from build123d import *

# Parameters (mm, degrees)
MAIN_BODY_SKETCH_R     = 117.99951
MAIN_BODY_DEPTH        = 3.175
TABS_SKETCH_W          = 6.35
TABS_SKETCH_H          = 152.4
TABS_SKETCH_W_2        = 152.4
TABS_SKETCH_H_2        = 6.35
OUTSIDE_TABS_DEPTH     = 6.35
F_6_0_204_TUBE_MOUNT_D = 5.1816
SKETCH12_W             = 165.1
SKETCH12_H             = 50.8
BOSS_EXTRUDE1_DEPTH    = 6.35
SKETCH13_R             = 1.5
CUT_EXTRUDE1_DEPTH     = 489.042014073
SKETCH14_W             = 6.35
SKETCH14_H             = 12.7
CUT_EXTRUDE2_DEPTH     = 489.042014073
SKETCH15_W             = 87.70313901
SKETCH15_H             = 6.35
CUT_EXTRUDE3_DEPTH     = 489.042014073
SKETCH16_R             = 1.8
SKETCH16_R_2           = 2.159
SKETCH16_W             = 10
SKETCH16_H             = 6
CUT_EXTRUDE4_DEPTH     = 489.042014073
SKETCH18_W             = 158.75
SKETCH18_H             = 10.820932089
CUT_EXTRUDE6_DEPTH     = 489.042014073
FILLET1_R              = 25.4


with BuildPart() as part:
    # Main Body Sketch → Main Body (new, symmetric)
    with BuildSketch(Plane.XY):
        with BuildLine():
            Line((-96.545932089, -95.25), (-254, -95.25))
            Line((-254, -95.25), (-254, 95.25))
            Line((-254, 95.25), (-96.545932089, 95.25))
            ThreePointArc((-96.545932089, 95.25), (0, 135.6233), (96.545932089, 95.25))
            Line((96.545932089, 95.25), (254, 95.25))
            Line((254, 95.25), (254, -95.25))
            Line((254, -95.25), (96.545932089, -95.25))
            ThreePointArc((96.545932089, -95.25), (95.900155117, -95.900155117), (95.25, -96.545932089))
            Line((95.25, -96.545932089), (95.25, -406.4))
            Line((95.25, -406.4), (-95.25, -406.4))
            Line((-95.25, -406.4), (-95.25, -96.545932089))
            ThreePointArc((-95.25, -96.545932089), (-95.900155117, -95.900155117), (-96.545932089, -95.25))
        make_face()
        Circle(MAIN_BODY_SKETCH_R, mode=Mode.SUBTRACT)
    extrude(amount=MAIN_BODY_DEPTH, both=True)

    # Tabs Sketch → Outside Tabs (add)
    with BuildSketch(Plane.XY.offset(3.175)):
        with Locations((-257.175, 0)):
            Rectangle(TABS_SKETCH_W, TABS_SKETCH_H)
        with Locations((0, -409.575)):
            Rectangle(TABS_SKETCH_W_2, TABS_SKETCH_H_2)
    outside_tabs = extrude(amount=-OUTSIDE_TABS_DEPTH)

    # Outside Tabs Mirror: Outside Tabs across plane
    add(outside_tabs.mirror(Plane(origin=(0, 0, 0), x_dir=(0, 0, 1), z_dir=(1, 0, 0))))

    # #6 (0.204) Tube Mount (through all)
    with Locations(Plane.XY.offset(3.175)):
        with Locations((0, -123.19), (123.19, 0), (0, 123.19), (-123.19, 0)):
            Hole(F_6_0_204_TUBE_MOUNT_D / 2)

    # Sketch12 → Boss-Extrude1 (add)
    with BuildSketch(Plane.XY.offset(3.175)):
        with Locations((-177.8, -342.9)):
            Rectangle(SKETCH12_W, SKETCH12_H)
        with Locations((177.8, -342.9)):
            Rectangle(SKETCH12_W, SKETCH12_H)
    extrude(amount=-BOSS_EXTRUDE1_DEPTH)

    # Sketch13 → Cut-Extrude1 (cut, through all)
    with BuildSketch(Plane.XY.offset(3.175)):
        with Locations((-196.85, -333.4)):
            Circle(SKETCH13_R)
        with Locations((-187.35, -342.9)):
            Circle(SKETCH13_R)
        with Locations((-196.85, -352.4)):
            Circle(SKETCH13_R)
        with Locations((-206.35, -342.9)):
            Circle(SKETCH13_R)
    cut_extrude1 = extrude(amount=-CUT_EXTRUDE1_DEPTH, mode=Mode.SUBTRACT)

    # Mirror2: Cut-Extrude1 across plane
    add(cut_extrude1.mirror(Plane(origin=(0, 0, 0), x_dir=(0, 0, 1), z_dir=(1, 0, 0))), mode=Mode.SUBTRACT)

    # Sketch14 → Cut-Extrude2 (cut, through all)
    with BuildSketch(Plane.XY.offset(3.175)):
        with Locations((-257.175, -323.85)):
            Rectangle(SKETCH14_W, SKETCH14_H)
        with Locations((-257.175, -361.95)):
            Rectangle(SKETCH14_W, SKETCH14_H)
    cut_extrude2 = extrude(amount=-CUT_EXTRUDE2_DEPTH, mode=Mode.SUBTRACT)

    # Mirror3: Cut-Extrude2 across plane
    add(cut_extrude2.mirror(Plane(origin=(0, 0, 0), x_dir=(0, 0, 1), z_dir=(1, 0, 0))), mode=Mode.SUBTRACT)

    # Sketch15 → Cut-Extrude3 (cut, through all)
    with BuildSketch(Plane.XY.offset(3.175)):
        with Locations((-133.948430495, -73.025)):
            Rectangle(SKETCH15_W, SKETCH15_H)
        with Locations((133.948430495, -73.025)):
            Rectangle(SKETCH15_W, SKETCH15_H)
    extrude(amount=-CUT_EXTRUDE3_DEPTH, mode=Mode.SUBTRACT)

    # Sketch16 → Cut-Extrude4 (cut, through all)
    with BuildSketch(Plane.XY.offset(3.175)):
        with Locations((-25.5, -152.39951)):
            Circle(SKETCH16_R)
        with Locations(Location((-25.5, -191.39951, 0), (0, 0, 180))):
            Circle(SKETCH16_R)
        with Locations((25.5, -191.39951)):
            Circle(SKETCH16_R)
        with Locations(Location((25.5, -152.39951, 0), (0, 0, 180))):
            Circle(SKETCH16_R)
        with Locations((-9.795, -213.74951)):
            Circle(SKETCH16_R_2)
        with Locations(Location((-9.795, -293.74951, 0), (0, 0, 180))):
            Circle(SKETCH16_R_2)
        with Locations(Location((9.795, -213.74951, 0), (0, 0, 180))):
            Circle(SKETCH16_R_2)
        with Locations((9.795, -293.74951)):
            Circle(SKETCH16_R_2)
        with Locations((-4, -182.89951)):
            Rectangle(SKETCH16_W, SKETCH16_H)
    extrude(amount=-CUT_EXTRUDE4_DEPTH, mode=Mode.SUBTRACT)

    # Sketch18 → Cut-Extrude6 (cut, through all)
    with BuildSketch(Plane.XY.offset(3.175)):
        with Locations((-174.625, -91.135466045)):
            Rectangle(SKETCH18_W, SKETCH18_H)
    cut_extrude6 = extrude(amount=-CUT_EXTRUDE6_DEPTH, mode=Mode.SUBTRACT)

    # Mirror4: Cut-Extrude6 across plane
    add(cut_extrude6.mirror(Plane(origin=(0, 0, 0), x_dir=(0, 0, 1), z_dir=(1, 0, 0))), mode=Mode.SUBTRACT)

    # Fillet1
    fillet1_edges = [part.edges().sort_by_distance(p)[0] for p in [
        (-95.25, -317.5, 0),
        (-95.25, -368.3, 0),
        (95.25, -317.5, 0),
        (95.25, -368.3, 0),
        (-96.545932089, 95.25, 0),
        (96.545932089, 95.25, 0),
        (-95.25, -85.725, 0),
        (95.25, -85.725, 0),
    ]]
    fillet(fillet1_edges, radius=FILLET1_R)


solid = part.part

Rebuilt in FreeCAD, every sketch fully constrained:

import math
import FreeCAD as App
import Part
import Sketcher
from FreeCAD import Vector
Q = App.Units.Quantity


def edges_at(feature, points):
    """Names of the edges that pass closest to the given points."""
    edges = feature.Shape.Edges
    near = lambda p: min(range(len(edges)), key=lambda i: edges[i].distToShape(Part.Vertex(*p))[0])
    return sorted({f"Edge{near(p) + 1}" for p in points})


def add_polygon(sketch, points):
    """Adds a closed chain of lines whose ends are joined by coincident constraints."""
    first, n = sketch.GeometryCount, len(points)
    for a, b in zip(points, points[1:] + points[:1]):
        sketch.addGeometry(Part.LineSegment(App.Vector(*a, 0), App.Vector(*b, 0)), False)
    for i in range(n):
        sketch.addConstraint(Sketcher.Constraint("Coincident", first + i, 2, first + (i + 1) % n, 1))

doc = App.newDocument("Part")
body = doc.addObject("PartDesign::Body", "Body")

sketch1 = doc.addObject("Sketcher::SketchObject", "Sketch")
body.addObject(sketch1)
sketch1.AttachmentSupport = (doc.XY_Plane, [""])
sketch1.MapMode = "FlatFace"
sketch1.addGeometry([
    Part.LineSegment(Vector(-254, -95.2, 0), Vector(-96.5, -95.2, 0)),
    Part.ArcOfCircle(Part.Circle(Vector(0, 0, 0), Vector(0, 0, 1), 135.6), math.radians(-135.39), math.radians(-134.61)),
    Part.LineSegment(Vector(-95.2, -96.5, 0), Vector(-95.2, -406.4, 0)),
    Part.LineSegment(Vector(-95.2, -406.4, 0), Vector(95.2, -406.4, 0)),
    Part.LineSegment(Vector(95.2, -406.4, 0), Vector(95.2, -96.5, 0)),
    Part.ArcOfCircle(Part.Circle(Vector(0, 0, 0), Vector(0, 0, 1), 135.6), math.radians(-45.39), math.radians(-44.61)),
    Part.LineSegment(Vector(96.5, -95.2, 0), Vector(254, -95.2, 0)),
    Part.LineSegment(Vector(254, -95.2, 0), Vector(254, 95.2, 0)),
    Part.LineSegment(Vector(254, 95.2, 0), Vector(96.5, 95.2, 0)),
    Part.ArcOfCircle(Part.Circle(Vector(0, 0, 0), Vector(0, 0, 1), 135.6), math.radians(45), math.radians(135)),
    Part.LineSegment(Vector(-96.5, 95.2, 0), Vector(-254, 95.2, 0)),
    Part.LineSegment(Vector(-254, 95.2, 0), Vector(-254, -95.2, 0)),
    Part.Circle(Vector(0, 0, 0), Vector(0, 0, 1), 118),
], False)
sketch1.addConstraint([
    Sketcher.Constraint("Coincident", 0, 2, 1, 1),
    Sketcher.Constraint("Coincident", 1, 2, 2, 1),
    Sketcher.Constraint("Coincident", 2, 2, 3, 1),
    Sketcher.Constraint("Coincident", 3, 2, 4, 1),
    Sketcher.Constraint("Coincident", 4, 2, 5, 1),
    Sketcher.Constraint("Coincident", 5, 2, 6, 1),
    Sketcher.Constraint("Coincident", 6, 2, 7, 1),
    Sketcher.Constraint("Coincident", 7, 2, 8, 1),
    Sketcher.Constraint("Coincident", 8, 2, 9, 1),
    Sketcher.Constraint("Coincident", 9, 2, 10, 1),
    Sketcher.Constraint("Coincident", 10, 2, 11, 1),
    Sketcher.Constraint("Coincident", 11, 2, 0, 1),
    Sketcher.Constraint("Horizontal", 0),
    Sketcher.Constraint("Vertical", 2),
    Sketcher.Constraint("Horizontal", 3),
    Sketcher.Constraint("Vertical", 4),
    Sketcher.Constraint("Horizontal", 6),
    Sketcher.Constraint("Vertical", 7),
    Sketcher.Constraint("Horizontal", 8),
    Sketcher.Constraint("Horizontal", 10),
    Sketcher.Constraint("Vertical", 11),
    Sketcher.Constraint("Coincident", 1, 3, -1, 1),
    Sketcher.Constraint("Coincident", 5, 3, -1, 1),
    Sketcher.Constraint("Coincident", 9, 3, -1, 1),
    Sketcher.Constraint("Coincident", 12, 3, -1, 1),
    Sketcher.Constraint("Equal", 1, 5),
    Sketcher.Constraint("Equal", 5, 9),
    Sketcher.Constraint("Symmetric", 6, 2, 10, 2, -1, 1),
    Sketcher.Constraint("Horizontal", 1, 2, 4, 2),
    Sketcher.Constraint("Horizontal", 0, 2, 5, 2),
    Sketcher.Constraint("Horizontal", 8, 2, 9, 2),
    Sketcher.Constraint("Equal", 3, 7),
    Sketcher.Constraint("DistanceX", 3, 1, 3, 2, Q("7.5 in")),
    Sketcher.Constraint("DistanceY", 2, 2, -1, 1, Q("16 in")),
    Sketcher.Constraint("DistanceX", -1, 1, 6, 2, Q("10 in")),
    Sketcher.Constraint("Diameter", 12, Q("9.2913 in")),
    Sketcher.Constraint("Radius", 1, Q("5.3395 in")),
])
pad1 = doc.addObject("PartDesign::Pad", "Pad")
body.addObject(pad1)
pad1.Profile = sketch1
pad1.Length = Q("0.25 in")
pad1.Midplane = True

sketch2 = doc.addObject("Sketcher::SketchObject", "Sketch001")
body.addObject(sketch2)
sketch2.AttachmentSupport = (doc.XY_Plane, [""])
sketch2.MapMode = "FlatFace"
sketch2.AttachmentOffset = App.Placement(Vector(0, 0, 0.125 * 25.4), App.Rotation())
add_polygon(sketch2, [(-260, 76), (-260, -76), (-254, -76), (-254, 76)])
add_polygon(sketch2, [(-76, -406), (-76, -413), (76, -413), (76, -406)])
sketch2.addConstraint([
    Sketcher.Constraint("Vertical", 0),
    Sketcher.Constraint("Horizontal", 1),
    Sketcher.Constraint("Vertical", 2),
    Sketcher.Constraint("Horizontal", 3),
    Sketcher.Constraint("Vertical", 4),
    Sketcher.Constraint("Horizontal", 5),
    Sketcher.Constraint("Vertical", 6),
    Sketcher.Constraint("Horizontal", 7),
    Sketcher.Constraint("Equal", 7, 0),
    Sketcher.Constraint("Equal", 3, 4),
    Sketcher.Constraint("DistanceX", 5, 1, 5, 2, Q("6 in")),
    Sketcher.Constraint("DistanceY", 0, 2, -1, 1, Q("3 in")),
    Sketcher.Constraint("DistanceX", 1, 2, -1, 1, Q("10 in")),
    Sketcher.Constraint("DistanceX", 4, 2, -1, 1, Q("3 in")),
    Sketcher.Constraint("DistanceY", 6, 2, -1, 1, Q("16 in")),
    Sketcher.Constraint("DistanceX", 1, 1, 1, 2, Q("0.25 in")),
])
pad2 = doc.addObject("PartDesign::Pad", "Pad001")
body.addObject(pad2)
pad2.Profile = sketch2
pad2.Length = Q("0.25 in")
pad2.Reversed = True
doc.recompute()

mirrored = doc.addObject("PartDesign::Mirrored", "Mirrored")
body.addObject(mirrored)
mirrored.Originals = [pad2]
mirrored.MirrorPlane = (doc.YZ_Plane, [""])
body.Tip = mirrored

sketch3 = doc.addObject("Sketcher::SketchObject", "Sketch002")
body.addObject(sketch3)
sketch3.AttachmentSupport = (doc.XY_Plane, [""])
sketch3.MapMode = "FlatFace"
sketch3.AttachmentOffset = App.Placement(Vector(0, 0, 0.125 * 25.4), App.Rotation())
sketch3.addGeometry([
    Part.Circle(Vector(0, -123.2, 0), Vector(0, 0, 1), 2.6),
    Part.Circle(Vector(123.2, 0, 0), Vector(0, 0, 1), 2.6),
    Part.Circle(Vector(0, 123.2, 0), Vector(0, 0, 1), 2.6),
    Part.Circle(Vector(-123.2, 0, 0), Vector(0, 0, 1), 2.6),
], False)
sketch3.addConstraint([
    Sketcher.Constraint("Equal", 0, 1),
    Sketcher.Constraint("Equal", 1, 2),
    Sketcher.Constraint("Equal", 2, 3),
    Sketcher.Constraint("Symmetric", 0, 3, 2, 3, -1, 1),
    Sketcher.Constraint("Symmetric", 1, 3, 3, 3, -1, 1),
    Sketcher.Constraint("PointOnObject", 0, 3, -2),
    Sketcher.Constraint("PointOnObject", 1, 3, -1),
    Sketcher.Constraint("Diameter", 0, Q("0.204 in")),
    Sketcher.Constraint("DistanceY", 0, 3, 2, 3, Q("9.7 in")),
    Sketcher.Constraint("DistanceX", 3, 3, 1, 3, Q("9.7 in")),
])
doc.recompute()
hole = doc.addObject("PartDesign::Hole", "Hole")
body.addObject(hole)
hole.Profile = sketch3
hole.ThreadType = "None"
hole.Diameter = Q("0.204 in")
hole.DepthType = "ThroughAll"

sketch4 = doc.addObject("Sketcher::SketchObject", "Sketch003")
body.addObject(sketch4)
sketch4.AttachmentSupport = (doc.XY_Plane, [""])
sketch4.MapMode = "FlatFace"
sketch4.AttachmentOffset = App.Placement(Vector(0, 0, 0.125 * 25.4), App.Rotation())
add_polygon(sketch4, [(-260, -318), (-260, -368), (-95, -368), (-95, -318)])
add_polygon(sketch4, [(95, -318), (95, -368), (260, -368), (260, -318)])
sketch4.addConstraint([
    Sketcher.Constraint("Vertical", 0),
    Sketcher.Constraint("Horizontal", 1),
    Sketcher.Constraint("Vertical", 2),
    Sketcher.Constraint("Horizontal", 3),
    Sketcher.Constraint("Vertical", 4),
    Sketcher.Constraint("Horizontal", 5),
    Sketcher.Constraint("Vertical", 6),
    Sketcher.Constraint("Horizontal", 7),
    Sketcher.Constraint("Symmetric", 1, 2, 4, 2, -2),
    Sketcher.Constraint("Symmetric", 3, 2, 6, 2, -2),
    Sketcher.Constraint("DistanceY", 0, 2, 0, 1, Q("2 in")),
    Sketcher.Constraint("DistanceX", 1, 1, 1, 2, Q("6.5 in")),
    Sketcher.Constraint("DistanceX", 0, 2, 4, 2, Q("14 in")),
    Sketcher.Constraint("DistanceY", 0, 2, -1, 1, Q("14.5 in")),
])
pad3 = doc.addObject("PartDesign::Pad", "Pad002")
body.addObject(pad3)
pad3.Profile = sketch4
pad3.Length = Q("0.25 in")
pad3.Reversed = True

sketch5 = doc.addObject("Sketcher::SketchObject", "Sketch004")
body.addObject(sketch5)
sketch5.AttachmentSupport = (doc.XY_Plane, [""])
sketch5.MapMode = "FlatFace"
sketch5.AttachmentOffset = App.Placement(Vector(0, 0, 0.125 * 25.4), App.Rotation())
sketch5.addGeometry([
    Part.Circle(Vector(-196.8, -333.4, 0), Vector(0, 0, 1), 1.5),
    Part.Circle(Vector(-187.3, -342.9, 0), Vector(0, 0, 1), 1.5),
    Part.Circle(Vector(-196.8, -352.4, 0), Vector(0, 0, 1), 1.5),
    Part.Circle(Vector(-206.3, -342.9, 0), Vector(0, 0, 1), 1.5),
], False)
sketch5.addConstraint([
    Sketcher.Constraint("Equal", 0, 1),
    Sketcher.Constraint("Equal", 1, 2),
    Sketcher.Constraint("Equal", 2, 3),
    Sketcher.Constraint("Horizontal", 1, 3, 3, 3),
    Sketcher.Constraint("Vertical", 0, 3, 2, 3),
    Sketcher.Constraint("DistanceY", 1, 3, -1, 1, Q("13.5 in")),
    Sketcher.Constraint("Diameter", 0, Q("3 mm")),
    Sketcher.Constraint("DistanceX", 0, 3, -1, 1, Q("7.75 in")),
    Sketcher.Constraint("DistanceY", 0, 3, -1, 1, Q("333.4 mm")),
    Sketcher.Constraint("DistanceX", 1, 3, -1, 1, Q("187.35 mm")),
    Sketcher.Constraint("DistanceY", 2, 3, -1, 1, Q("352.4 mm")),
    Sketcher.Constraint("DistanceX", 3, 3, -1, 1, Q("206.35 mm")),
])
pocket1 = doc.addObject("PartDesign::Pocket", "Pocket")
body.addObject(pocket1)
pocket1.Profile = sketch5
pocket1.Type = "ThroughAll"
doc.recompute()

mirrored2 = doc.addObject("PartDesign::Mirrored", "Mirrored001")
body.addObject(mirrored2)
mirrored2.Originals = [pocket1]
mirrored2.MirrorPlane = (doc.YZ_Plane, [""])
body.Tip = mirrored2

sketch6 = doc.addObject("Sketcher::SketchObject", "Sketch005")
body.addObject(sketch6)
sketch6.AttachmentSupport = (doc.XY_Plane, [""])
sketch6.MapMode = "FlatFace"
sketch6.AttachmentOffset = App.Placement(Vector(0, 0, 0.125 * 25.4), App.Rotation())
add_polygon(sketch6, [(-260, -318), (-260, -330), (-254, -330), (-254, -318)])
add_polygon(sketch6, [(-260, -356), (-260, -368), (-254, -368), (-254, -356)])
sketch6.addConstraint([
    Sketcher.Constraint("Vertical", 0),
    Sketcher.Constraint("Horizontal", 1),
    Sketcher.Constraint("Vertical", 2),
    Sketcher.Constraint("Horizontal", 3),
    Sketcher.Constraint("Vertical", 4),
    Sketcher.Constraint("Horizontal", 5),
    Sketcher.Constraint("Vertical", 6),
    Sketcher.Constraint("Horizontal", 7),
    Sketcher.Constraint("Vertical", 3, 2, 4, 2),
    Sketcher.Constraint("Vertical", 2, 2, 5, 2),
    Sketcher.Constraint("Equal", 2, 4),
    Sketcher.Constraint("DistanceY", 0, 2, 0, 1, Q("0.5 in")),
    Sketcher.Constraint("DistanceY", 0, 2, -1, 1, Q("13 in")),
    Sketcher.Constraint("DistanceX", 1, 2, -1, 1, Q("10 in")),
    Sketcher.Constraint("DistanceY", 6, 2, -1, 1, Q("14 in")),
    Sketcher.Constraint("DistanceX", 1, 1, 1, 2, Q("0.25 in")),
])
pocket2 = doc.addObject("PartDesign::Pocket", "Pocket001")
body.addObject(pocket2)
pocket2.Profile = sketch6
pocket2.Type = "ThroughAll"
doc.recompute()

mirrored3 = doc.addObject("PartDesign::Mirrored", "Mirrored002")
body.addObject(mirrored3)
mirrored3.Originals = [pocket2]
mirrored3.MirrorPlane = (doc.YZ_Plane, [""])
body.Tip = mirrored3

sketch7 = doc.addObject("Sketcher::SketchObject", "Sketch006")
body.addObject(sketch7)
sketch7.AttachmentSupport = (doc.XY_Plane, [""])
sketch7.MapMode = "FlatFace"
sketch7.AttachmentOffset = App.Placement(Vector(0, 0, 0.125 * 25.4), App.Rotation())
add_polygon(sketch7, [(-178, -70), (-178, -76), (-90, -76), (-90, -70)])
add_polygon(sketch7, [(90, -70), (90, -76), (178, -76), (178, -70)])
sketch7.addConstraint([
    Sketcher.Constraint("Vertical", 0),
    Sketcher.Constraint("Horizontal", 1),
    Sketcher.Constraint("Vertical", 2),
    Sketcher.Constraint("Horizontal", 3),
    Sketcher.Constraint("Vertical", 4),
    Sketcher.Constraint("Horizontal", 5),
    Sketcher.Constraint("Vertical", 6),
    Sketcher.Constraint("Horizontal", 7),
    Sketcher.Constraint("Symmetric", 1, 2, 4, 2, -2),
    Sketcher.Constraint("Symmetric", 3, 2, 6, 2, -2),
    Sketcher.Constraint("DistanceX", 0, 2, -1, 1, Q("7 in")),
    Sketcher.Constraint("DistanceY", 0, 2, -1, 1, Q("3 in")),
    Sketcher.Constraint("DistanceY", 0, 2, 0, 1, Q("0.25 in")),
    Sketcher.Constraint("DistanceX", 1, 1, 1, 2, Q("87.703139 mm")),
])
pocket3 = doc.addObject("PartDesign::Pocket", "Pocket002")
body.addObject(pocket3)
pocket3.Profile = sketch7
pocket3.Type = "ThroughAll"

sketch8 = doc.addObject("Sketcher::SketchObject", "Sketch007")
body.addObject(sketch8)
sketch8.AttachmentSupport = (doc.XY_Plane, [""])
sketch8.MapMode = "FlatFace"
sketch8.AttachmentOffset = App.Placement(Vector(0, 0, 0.125 * 25.4), App.Rotation())
sketch8.addGeometry(Part.Circle(Vector(-25.5, -152.4, 0), Vector(0, 0, 1), 1.8), False)
sketch8.addGeometry(Part.Circle(Vector(-25.5, -191.4, 0), Vector(0, 0, 1), 1.8), False)
sketch8.addGeometry(Part.Circle(Vector(25.5, -191.4, 0), Vector(0, 0, 1), 1.8), False)
sketch8.addGeometry(Part.Circle(Vector(25.5, -152.4, 0), Vector(0, 0, 1), 1.8), False)
sketch8.addGeometry(Part.Circle(Vector(-9.8, -213.7, 0), Vector(0, 0, 1), 2.2), False)
sketch8.addGeometry(Part.Circle(Vector(-9.8, -293.7, 0), Vector(0, 0, 1), 2.2), False)
sketch8.addGeometry(Part.Circle(Vector(9.8, -213.7, 0), Vector(0, 0, 1), 2.2), False)
sketch8.addGeometry(Part.Circle(Vector(9.8, -293.7, 0), Vector(0, 0, 1), 2.2), False)
add_polygon(sketch8, [(-9, -179.9), (-9, -185.9), (1, -185.9), (1, -179.9)])
sketch8.addConstraint([
    Sketcher.Constraint("Vertical", 8),
    Sketcher.Constraint("Horizontal", 9),
    Sketcher.Constraint("Vertical", 10),
    Sketcher.Constraint("Horizontal", 11),
    Sketcher.Constraint("Equal", 0, 1),
    Sketcher.Constraint("Equal", 1, 2),
    Sketcher.Constraint("Equal", 2, 3),
    Sketcher.Constraint("Equal", 4, 5),
    Sketcher.Constraint("Equal", 5, 6),
    Sketcher.Constraint("Equal", 6, 7),
    Sketcher.Constraint("Symmetric", 1, 3, 2, 3, -2),
    Sketcher.Constraint("Symmetric", 0, 3, 3, 3, -2),
    Sketcher.Constraint("Symmetric", 4, 3, 6, 3, -2),
    Sketcher.Constraint("Symmetric", 5, 3, 7, 3, -2),
    Sketcher.Constraint("Vertical", 0, 3, 1, 3),
    Sketcher.Constraint("Vertical", 4, 3, 5, 3),
    Sketcher.Constraint("Diameter", 4, Q("0.17 in")),
    Sketcher.Constraint("Diameter", 0, Q("3.6 mm")),
    Sketcher.Constraint("DistanceX", 4, 3, 9, 2, Q("0.425 in")),
    Sketcher.Constraint("DistanceX", 9, 1, 9, 2, Q("10 mm")),
    Sketcher.Constraint("DistanceY", 8, 2, 8, 1, Q("6 mm")),
    Sketcher.Constraint("DistanceX", 0, 3, -1, 1, Q("25.5 mm")),
    Sketcher.Constraint("DistanceX", 4, 3, -1, 1, Q("9.795 mm")),
    Sketcher.Constraint("DistanceY", 1, 3, 0, 3, Q("39 mm")),
    Sketcher.Constraint("DistanceY", 4, 3, 1, 3, Q("22.35 mm")),
    Sketcher.Constraint("DistanceY", 5, 3, 4, 3, Q("80 mm")),
    Sketcher.Constraint("DistanceY", 1, 3, 8, 2, Q("5.5 mm")),
    Sketcher.Constraint("DistanceY", 0, 3, -1, 1, Q("152.39951 mm")),
])
pocket4 = doc.addObject("PartDesign::Pocket", "Pocket003")
body.addObject(pocket4)
pocket4.Profile = sketch8
pocket4.Type = "ThroughAll"

sketch9 = doc.addObject("Sketcher::SketchObject", "Sketch008")
body.addObject(sketch9)
sketch9.AttachmentSupport = (doc.XY_Plane, [""])
sketch9.MapMode = "FlatFace"
sketch9.AttachmentOffset = App.Placement(Vector(0, 0, 0.125 * 25.4), App.Rotation())
add_polygon(sketch9, [(-254, -86), (-254, -97), (-95, -97), (-95, -86)])
sketch9.addConstraint([
    Sketcher.Constraint("Vertical", 0),
    Sketcher.Constraint("Horizontal", 1),
    Sketcher.Constraint("Vertical", 2),
    Sketcher.Constraint("Horizontal", 3),
    Sketcher.Constraint("DistanceX", 0, 2, -1, 1, Q("10 in")),
    Sketcher.Constraint("DistanceX", 1, 1, 1, 2, Q("6.25 in")),
    Sketcher.Constraint("DistanceY", 2, 2, -1, 1, Q("3.375 in")),
    Sketcher.Constraint("DistanceY", 0, 2, 0, 1, Q("10.820932 mm")),
])
pocket5 = doc.addObject("PartDesign::Pocket", "Pocket004")
body.addObject(pocket5)
pocket5.Profile = sketch9
pocket5.Type = "ThroughAll"
doc.recompute()

mirrored4 = doc.addObject("PartDesign::Mirrored", "Mirrored003")
body.addObject(mirrored4)
mirrored4.Originals = [pocket5]
mirrored4.MirrorPlane = (doc.YZ_Plane, [""])
body.Tip = mirrored4
doc.recompute()

fillet = doc.addObject("PartDesign::Fillet", "Fillet")
body.addObject(fillet)
fillet.Base = (mirrored4, edges_at(mirrored4, [
    (-95.25, -317.5, 0),
    (-95.25, -368.3, 0),
    (95.25, -317.5, 0),
    (95.25, -368.3, 0),
    (-96.546, 95.25, 0),
    (96.546, 95.25, 0),
    (-95.25, -85.725, 0),
    (95.25, -85.725, 0),
]))
fillet.Radius = Q("1 in")

doc.recompute()
